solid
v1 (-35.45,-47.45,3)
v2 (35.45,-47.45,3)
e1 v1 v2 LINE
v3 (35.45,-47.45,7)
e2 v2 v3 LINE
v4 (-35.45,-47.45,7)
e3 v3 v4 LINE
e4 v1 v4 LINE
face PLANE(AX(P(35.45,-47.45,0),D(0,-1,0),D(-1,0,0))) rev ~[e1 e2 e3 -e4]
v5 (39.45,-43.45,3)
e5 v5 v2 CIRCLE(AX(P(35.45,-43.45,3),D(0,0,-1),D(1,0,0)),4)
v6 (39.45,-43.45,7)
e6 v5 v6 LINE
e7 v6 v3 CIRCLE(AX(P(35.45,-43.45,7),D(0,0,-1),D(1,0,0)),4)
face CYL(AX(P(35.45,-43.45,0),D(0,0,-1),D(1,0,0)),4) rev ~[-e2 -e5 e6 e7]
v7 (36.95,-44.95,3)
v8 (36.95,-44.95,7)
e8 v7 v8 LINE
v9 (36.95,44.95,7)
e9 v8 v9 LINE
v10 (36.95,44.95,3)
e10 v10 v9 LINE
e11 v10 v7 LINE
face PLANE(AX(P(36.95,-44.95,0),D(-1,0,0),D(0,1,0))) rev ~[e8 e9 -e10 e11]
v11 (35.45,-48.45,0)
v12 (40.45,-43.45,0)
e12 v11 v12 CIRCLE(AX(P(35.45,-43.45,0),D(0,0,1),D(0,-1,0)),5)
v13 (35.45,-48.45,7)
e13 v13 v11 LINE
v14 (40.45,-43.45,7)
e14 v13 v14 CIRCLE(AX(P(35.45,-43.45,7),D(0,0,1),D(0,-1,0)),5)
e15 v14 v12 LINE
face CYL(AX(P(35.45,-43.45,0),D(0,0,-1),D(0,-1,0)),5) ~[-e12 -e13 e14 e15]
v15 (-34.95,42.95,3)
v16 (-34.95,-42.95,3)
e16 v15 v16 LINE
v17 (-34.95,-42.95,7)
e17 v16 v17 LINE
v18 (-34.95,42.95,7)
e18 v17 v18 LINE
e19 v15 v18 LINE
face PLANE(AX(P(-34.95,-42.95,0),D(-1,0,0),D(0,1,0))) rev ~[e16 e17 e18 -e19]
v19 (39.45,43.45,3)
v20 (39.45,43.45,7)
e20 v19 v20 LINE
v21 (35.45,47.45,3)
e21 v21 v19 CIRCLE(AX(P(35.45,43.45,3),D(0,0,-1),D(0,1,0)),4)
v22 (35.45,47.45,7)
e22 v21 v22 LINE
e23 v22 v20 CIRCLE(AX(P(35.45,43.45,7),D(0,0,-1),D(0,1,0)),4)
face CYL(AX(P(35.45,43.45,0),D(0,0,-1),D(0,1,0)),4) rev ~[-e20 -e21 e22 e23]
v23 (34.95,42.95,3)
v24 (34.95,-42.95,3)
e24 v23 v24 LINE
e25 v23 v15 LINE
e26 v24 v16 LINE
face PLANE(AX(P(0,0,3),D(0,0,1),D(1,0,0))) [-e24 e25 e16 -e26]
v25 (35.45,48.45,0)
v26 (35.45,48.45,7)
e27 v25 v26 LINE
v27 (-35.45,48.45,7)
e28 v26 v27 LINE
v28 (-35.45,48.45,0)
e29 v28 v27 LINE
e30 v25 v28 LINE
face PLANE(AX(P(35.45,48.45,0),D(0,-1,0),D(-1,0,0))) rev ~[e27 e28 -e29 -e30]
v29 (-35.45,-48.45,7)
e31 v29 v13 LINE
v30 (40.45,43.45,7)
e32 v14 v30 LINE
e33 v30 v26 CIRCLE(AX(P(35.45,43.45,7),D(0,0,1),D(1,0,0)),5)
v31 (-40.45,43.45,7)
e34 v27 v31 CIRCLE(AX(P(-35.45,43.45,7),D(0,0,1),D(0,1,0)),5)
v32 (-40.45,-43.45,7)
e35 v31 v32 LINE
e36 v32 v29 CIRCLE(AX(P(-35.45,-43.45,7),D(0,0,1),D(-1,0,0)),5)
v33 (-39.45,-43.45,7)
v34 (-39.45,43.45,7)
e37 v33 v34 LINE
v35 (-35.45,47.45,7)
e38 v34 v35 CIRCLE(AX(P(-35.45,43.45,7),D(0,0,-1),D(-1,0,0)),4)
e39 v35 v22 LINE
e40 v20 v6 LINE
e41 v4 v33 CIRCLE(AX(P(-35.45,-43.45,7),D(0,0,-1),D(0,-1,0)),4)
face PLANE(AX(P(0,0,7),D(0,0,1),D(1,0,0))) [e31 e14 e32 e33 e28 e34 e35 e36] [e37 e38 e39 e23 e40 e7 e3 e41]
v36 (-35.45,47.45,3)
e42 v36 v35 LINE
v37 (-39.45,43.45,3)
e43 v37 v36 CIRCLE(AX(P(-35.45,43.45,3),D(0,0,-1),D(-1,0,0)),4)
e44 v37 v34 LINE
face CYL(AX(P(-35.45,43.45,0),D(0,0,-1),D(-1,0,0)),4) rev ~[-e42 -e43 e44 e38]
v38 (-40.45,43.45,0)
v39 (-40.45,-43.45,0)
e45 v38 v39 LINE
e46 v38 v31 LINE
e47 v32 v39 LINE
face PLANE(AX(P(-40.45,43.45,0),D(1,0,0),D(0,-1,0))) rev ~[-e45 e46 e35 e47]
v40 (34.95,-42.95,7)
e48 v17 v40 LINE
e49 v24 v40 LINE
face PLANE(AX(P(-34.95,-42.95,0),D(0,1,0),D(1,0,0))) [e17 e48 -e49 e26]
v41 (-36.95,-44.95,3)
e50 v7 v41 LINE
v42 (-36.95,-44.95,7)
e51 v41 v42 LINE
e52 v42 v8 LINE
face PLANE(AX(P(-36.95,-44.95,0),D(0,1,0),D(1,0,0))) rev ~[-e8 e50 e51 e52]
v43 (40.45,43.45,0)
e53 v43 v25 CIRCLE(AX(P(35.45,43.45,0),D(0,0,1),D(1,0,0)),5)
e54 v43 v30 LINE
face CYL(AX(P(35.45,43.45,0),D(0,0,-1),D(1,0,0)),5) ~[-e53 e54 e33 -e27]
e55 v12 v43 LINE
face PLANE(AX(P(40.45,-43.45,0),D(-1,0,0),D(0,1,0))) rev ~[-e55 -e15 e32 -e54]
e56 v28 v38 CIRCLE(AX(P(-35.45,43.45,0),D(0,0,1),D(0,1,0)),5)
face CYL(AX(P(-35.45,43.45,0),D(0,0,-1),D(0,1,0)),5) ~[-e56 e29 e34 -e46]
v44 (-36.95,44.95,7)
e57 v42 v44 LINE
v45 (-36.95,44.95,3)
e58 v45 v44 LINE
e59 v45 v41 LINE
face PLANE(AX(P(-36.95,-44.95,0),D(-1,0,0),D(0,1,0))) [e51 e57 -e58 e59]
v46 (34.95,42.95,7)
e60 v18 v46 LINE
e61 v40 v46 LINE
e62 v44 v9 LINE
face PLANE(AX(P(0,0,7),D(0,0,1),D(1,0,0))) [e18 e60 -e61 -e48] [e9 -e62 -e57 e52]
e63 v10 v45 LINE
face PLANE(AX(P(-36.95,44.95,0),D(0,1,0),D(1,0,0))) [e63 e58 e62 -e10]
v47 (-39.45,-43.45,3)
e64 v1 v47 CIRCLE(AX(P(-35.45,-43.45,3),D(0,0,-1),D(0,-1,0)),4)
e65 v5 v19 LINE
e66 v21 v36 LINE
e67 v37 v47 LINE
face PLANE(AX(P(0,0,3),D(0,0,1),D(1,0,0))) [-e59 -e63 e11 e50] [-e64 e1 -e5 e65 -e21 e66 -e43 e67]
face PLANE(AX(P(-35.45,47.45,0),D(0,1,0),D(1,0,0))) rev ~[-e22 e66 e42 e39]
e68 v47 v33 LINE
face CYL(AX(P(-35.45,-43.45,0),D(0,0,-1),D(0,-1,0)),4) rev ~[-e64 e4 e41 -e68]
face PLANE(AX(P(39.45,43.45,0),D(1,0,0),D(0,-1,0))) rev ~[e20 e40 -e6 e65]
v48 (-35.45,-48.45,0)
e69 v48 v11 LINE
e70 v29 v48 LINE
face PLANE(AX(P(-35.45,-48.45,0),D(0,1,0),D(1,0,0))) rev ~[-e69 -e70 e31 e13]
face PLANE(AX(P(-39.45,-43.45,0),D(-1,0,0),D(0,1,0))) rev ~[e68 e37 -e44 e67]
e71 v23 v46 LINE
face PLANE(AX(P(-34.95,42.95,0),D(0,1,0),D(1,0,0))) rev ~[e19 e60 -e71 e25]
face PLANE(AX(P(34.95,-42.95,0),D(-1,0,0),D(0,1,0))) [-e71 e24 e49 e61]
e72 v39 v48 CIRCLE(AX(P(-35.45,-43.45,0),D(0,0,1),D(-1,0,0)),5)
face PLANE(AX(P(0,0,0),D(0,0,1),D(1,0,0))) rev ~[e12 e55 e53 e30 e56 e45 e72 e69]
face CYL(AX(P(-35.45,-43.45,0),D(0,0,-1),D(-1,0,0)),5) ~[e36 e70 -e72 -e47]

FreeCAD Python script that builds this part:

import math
import FreeCAD as App
import Part
import Sketcher
Q = App.Units.Quantity


def add_polygon(sketch, points):
    """Adds a closed chain of lines whose ends are joined by coincident constraints."""
    first, n = sketch.GeometryCount, len(points)
    for a, b in zip(points, points[1:] + points[:1]):
        sketch.addGeometry(Part.LineSegment(App.Vector(*a, 0), App.Vector(*b, 0)), False)
    for i in range(n):
        sketch.addConstraint(Sketcher.Constraint("Coincident", first + i, 2, first + (i + 1) % n, 1))

doc = App.newDocument("Part")
body = doc.addObject("PartDesign::Body", "Body")

# Sketch on XY plane
sketch1 = body.newObject("Sketcher::SketchObject", "Sketch")
sketch1.AttachmentSupport = (doc.getObject("XY_Plane"), [""])
sketch1.MapMode = "FlatFace"
sketch1.addGeometry([
    Part.LineSegment(App.Vector(40, -43, 0), App.Vector(40, 43, 0)),  # 0
    Part.ArcOfCircle(Part.Circle(App.Vector(35, 43, 0), App.Vector(0, 0, 1), 5), math.radians(0), math.radians(90)),  # 1
    Part.LineSegment(App.Vector(35, 48, 0), App.Vector(-35, 48, 0)),  # 2
    Part.ArcOfCircle(Part.Circle(App.Vector(-35, 43, 0), App.Vector(0, 0, 1), 5), math.radians(90), math.radians(180)),  # 3
    Part.LineSegment(App.Vector(-40, 43, 0), App.Vector(-40, -43, 0)),  # 4
    Part.ArcOfCircle(Part.Circle(App.Vector(-35, -43, 0), App.Vector(0, 0, 1), 5), math.radians(180), math.radians(270)),  # 5
    Part.LineSegment(App.Vector(-35, -48, 0), App.Vector(35, -48, 0)),  # 6
    Part.ArcOfCircle(Part.Circle(App.Vector(35, -43, 0), App.Vector(0, 0, 1), 5), math.radians(-90), math.radians(0)),  # 7
], False)
sketch1.addConstraint([
    Sketcher.Constraint("Tangent", 0, 2, 1, 1),
    Sketcher.Constraint("Tangent", 1, 2, 2, 1),
    Sketcher.Constraint("Tangent", 2, 2, 3, 1),
    Sketcher.Constraint("Tangent", 3, 2, 4, 1),
    Sketcher.Constraint("Tangent", 4, 2, 5, 1),
    Sketcher.Constraint("Tangent", 5, 2, 6, 1),
    Sketcher.Constraint("Tangent", 6, 2, 7, 1),
    Sketcher.Constraint("Tangent", 7, 2, 0, 1),
    Sketcher.Constraint("Vertical", 0),
    Sketcher.Constraint("Horizontal", 2),
    Sketcher.Constraint("Vertical", 4),
    Sketcher.Constraint("Horizontal", 6),
    Sketcher.Constraint("Equal", 1, 3),
    Sketcher.Constraint("Equal", 3, 5),
    Sketcher.Constraint("Equal", 5, 7),
    Sketcher.Constraint("Symmetric", 1, 3, 5, 3, -1, 1),
    Sketcher.Constraint("Radius", 1, Q("5 mm")),
    Sketcher.Constraint("DistanceX", 2, 2, 2, 1, Q("70.9 mm")),
    Sketcher.Constraint("DistanceY", 0, 1, 0, 2, Q("86.9 mm")),
])
pad1 = body.newObject("PartDesign::Pad", "Pad")
pad1.Profile = sketch1
pad1.Length = 3

# Sketch on XY plane
sketch2 = body.newObject("Sketcher::SketchObject", "Sketch001")
sketch2.AttachmentSupport = (doc.getObject("XY_Plane"), [""])
sketch2.MapMode = "FlatFace"
sketch2.addGeometry([
    Part.LineSegment(App.Vector(40.5, -43.5, 0), App.Vector(40.5, 43.5, 0)),  # 0
    Part.ArcOfCircle(Part.Circle(App.Vector(35.5, 43.5, 0), App.Vector(0, 0, 1), 5), math.radians(0), math.radians(90)),  # 1
    Part.LineSegment(App.Vector(35.5, 48.5, 0), App.Vector(-35.5, 48.5, 0)),  # 2
    Part.ArcOfCircle(Part.Circle(App.Vector(-35.5, 43.5, 0), App.Vector(0, 0, 1), 5), math.radians(90), math.radians(180)),  # 3
    Part.LineSegment(App.Vector(-40.5, 43.5, 0), App.Vector(-40.5, -43.5, 0)),  # 4
    Part.ArcOfCircle(Part.Circle(App.Vector(-35.5, -43.5, 0), App.Vector(0, 0, 1), 5), math.radians(180), math.radians(270)),  # 5
    Part.LineSegment(App.Vector(-35.5, -48.5, 0), App.Vector(35.5, -48.5, 0)),  # 6
    Part.ArcOfCircle(Part.Circle(App.Vector(35.5, -43.5, 0), App.Vector(0, 0, 1), 5), math.radians(-90), math.radians(0)),  # 7
    Part.LineSegment(App.Vector(-39.5, -43.5, 0), App.Vector(-39.5, 43.5, 0)),  # 8
    Part.ArcOfCircle(Part.Circle(App.Vector(-35.5, 43.5, 0), App.Vector(0, 0, 1), 4), math.radians(90), math.radians(180)),  # 9
    Part.LineSegment(App.Vector(-35.5, 47.5, 0), App.Vector(35.5, 47.5, 0)),  # 10
    Part.ArcOfCircle(Part.Circle(App.Vector(35.5, 43.5, 0), App.Vector(0, 0, 1), 4), math.radians(0), math.radians(90)),  # 11
    Part.LineSegment(App.Vector(39.5, 43.5, 0), App.Vector(39.5, -43.5, 0)),  # 12
    Part.ArcOfCircle(Part.Circle(App.Vector(35.5, -43.5, 0), App.Vector(0, 0, 1), 4), math.radians(-90), math.radians(0)),  # 13
    Part.LineSegment(App.Vector(35.5, -47.5, 0), App.Vector(-35.5, -47.5, 0)),  # 14
    Part.ArcOfCircle(Part.Circle(App.Vector(-35.5, -43.5, 0), App.Vector(0, 0, 1), 4), math.radians(180), math.radians(270)),  # 15
], False)
sketch2.addConstraint([
    Sketcher.Constraint("Tangent", 0, 2, 1, 1),
    Sketcher.Constraint("Tangent", 1, 2, 2, 1),
    Sketcher.Constraint("Tangent", 2, 2, 3, 1),
    Sketcher.Constraint("Tangent", 3, 2, 4, 1),
    Sketcher.Constraint("Tangent", 4, 2, 5, 1),
    Sketcher.Constraint("Tangent", 5, 2, 6, 1),
    Sketcher.Constraint("Tangent", 6, 2, 7, 1),
    Sketcher.Constraint("Tangent", 7, 2, 0, 1),
    Sketcher.Constraint("Tangent", 8, 2, 9, 2),
    Sketcher.Constraint("Tangent", 9, 1, 10, 1),
    Sketcher.Constraint("Tangent", 10, 2, 11, 2),
    Sketcher.Constraint("Tangent", 11, 1, 12, 1),
    Sketcher.Constraint("Tangent", 12, 2, 13, 2),
    Sketcher.Constraint("Tangent", 13, 1, 14, 1),
    Sketcher.Constraint("Tangent", 14, 2, 15, 2),
    Sketcher.Constraint("Tangent", 15, 1, 8, 1),
    Sketcher.Constraint("Vertical", 0),
    Sketcher.Constraint("Horizontal", 2),
    Sketcher.Constraint("Vertical", 4),
    Sketcher.Constraint("Horizontal", 6),
    Sketcher.Constraint("Vertical", 8),
    Sketcher.Constraint("Horizontal", 10),
    Sketcher.Constraint("Vertical", 12),
    Sketcher.Constraint("Horizontal", 14),
    Sketcher.Constraint("Coincident", 9, 3, 3, 3),
    Sketcher.Constraint("Coincident", 11, 3, 1, 3),
    Sketcher.Constraint("Coincident", 13, 3, 7, 3),
    Sketcher.Constraint("Equal", 1, 3),
    Sketcher.Constraint("Equal", 3, 5),
    Sketcher.Constraint("Equal", 5, 7),
    Sketcher.Constraint("Equal", 13, 15),
    Sketcher.Constraint("Symmetric", 1, 3, 5, 3, -1, 1),
    Sketcher.Constraint("Radius", 1, Q("5 mm")),
    Sketcher.Constraint("Radius", 9, Q("4 mm")),
    Sketcher.Constraint("DistanceX", 2, 2, 2, 1, Q("70.9 mm")),
    Sketcher.Constraint("DistanceY", 0, 1, 0, 2, Q("86.9 mm")),
])
pad2 = body.newObject("PartDesign::Pad", "Pad001")
pad2.Profile = sketch2
pad2.Length = 7

# Sketch on XY plane
sketch3 = body.newObject("Sketcher::SketchObject", "Sketch002")
sketch3.AttachmentSupport = (doc.getObject("XY_Plane"), [""])
sketch3.MapMode = "FlatFace"
add_polygon(sketch3, [(-37, 45), (-37, -45), (37, -45), (37, 45)])  # lines 0-3
add_polygon(sketch3, [(35, -43), (-35, -43), (-35, 43), (35, 43)])  # lines 4-7
sketch3.addConstraint([
    Sketcher.Constraint("Vertical", 0),
    Sketcher.Constraint("Horizontal", 1),
    Sketcher.Constraint("Vertical", 2),
    Sketcher.Constraint("Horizontal", 3),
    Sketcher.Constraint("Horizontal", 4),
    Sketcher.Constraint("Vertical", 5),
    Sketcher.Constraint("Horizontal", 6),
    Sketcher.Constraint("Vertical", 7),
    Sketcher.Constraint("Symmetric", 0, 2, 2, 2, -1, 1),
    Sketcher.Constraint("Symmetric", 4, 2, 6, 2, -1, 1),
    Sketcher.Constraint("DistanceX", 1, 1, 1, 2, Q("73.9 mm")),
    Sketcher.Constraint("DistanceX", 4, 2, 4, 1, Q("69.9 mm")),
    Sketcher.Constraint("DistanceY", 0, 2, 0, 1, Q("89.9 mm")),
    Sketcher.Constraint("DistanceY", 5, 1, 5, 2, Q("85.9 mm")),
])
pad3 = body.newObject("PartDesign::Pad", "Pad002")
pad3.Profile = sketch3
pad3.Length = 7

doc.recompute()
